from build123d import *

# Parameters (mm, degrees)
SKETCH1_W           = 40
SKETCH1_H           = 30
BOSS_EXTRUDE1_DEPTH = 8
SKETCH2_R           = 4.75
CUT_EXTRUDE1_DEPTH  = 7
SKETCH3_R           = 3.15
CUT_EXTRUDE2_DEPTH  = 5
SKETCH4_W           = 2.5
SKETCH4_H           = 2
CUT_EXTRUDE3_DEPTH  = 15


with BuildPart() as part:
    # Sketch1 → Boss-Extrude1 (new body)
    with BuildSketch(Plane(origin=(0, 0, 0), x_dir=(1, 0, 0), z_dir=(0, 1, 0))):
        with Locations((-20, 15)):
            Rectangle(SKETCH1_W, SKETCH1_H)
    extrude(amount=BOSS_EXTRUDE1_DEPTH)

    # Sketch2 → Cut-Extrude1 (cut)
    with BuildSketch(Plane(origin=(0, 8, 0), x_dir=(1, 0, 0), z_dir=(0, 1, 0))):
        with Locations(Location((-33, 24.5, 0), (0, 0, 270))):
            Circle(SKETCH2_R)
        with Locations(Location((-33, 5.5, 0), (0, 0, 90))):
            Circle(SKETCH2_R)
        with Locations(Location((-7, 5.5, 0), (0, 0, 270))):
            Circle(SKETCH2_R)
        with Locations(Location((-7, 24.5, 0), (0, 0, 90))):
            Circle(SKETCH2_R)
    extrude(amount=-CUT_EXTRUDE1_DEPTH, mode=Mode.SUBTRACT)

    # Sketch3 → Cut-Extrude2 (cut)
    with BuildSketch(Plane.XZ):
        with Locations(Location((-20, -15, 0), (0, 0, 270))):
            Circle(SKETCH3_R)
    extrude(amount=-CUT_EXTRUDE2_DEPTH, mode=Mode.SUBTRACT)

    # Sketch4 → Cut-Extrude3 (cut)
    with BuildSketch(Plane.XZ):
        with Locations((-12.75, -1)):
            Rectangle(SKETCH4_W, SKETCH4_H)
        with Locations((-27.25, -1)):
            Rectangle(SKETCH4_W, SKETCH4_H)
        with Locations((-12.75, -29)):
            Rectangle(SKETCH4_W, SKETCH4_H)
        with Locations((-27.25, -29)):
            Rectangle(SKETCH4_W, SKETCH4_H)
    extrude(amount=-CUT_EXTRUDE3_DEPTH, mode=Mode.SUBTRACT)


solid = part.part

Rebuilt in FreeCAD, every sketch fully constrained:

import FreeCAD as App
import Part
import Sketcher

V = App.Vector


def add_polygon(sketch, points):
    """Adds a closed chain of lines whose ends are joined by coincident constraints."""
    first, n = sketch.GeometryCount, len(points)
    for a, b in zip(points, points[1:] + points[:1]):
        sketch.addGeometry(Part.LineSegment(App.Vector(*a, 0), App.Vector(*b, 0)), False)
    for i in range(n):
        sketch.addConstraint(Sketcher.Constraint("Coincident", first + i, 2, first + (i + 1) % n, 1))

doc = App.newDocument("Part")
body = doc.addObject("PartDesign::Body", "Body")

# Sketch on XZ plane
sketch1 = doc.addObject("Sketcher::SketchObject", "Sketch")
body.addObject(sketch1)
sketch1.AttachmentSupport = (doc.XZ_Plane, [""])
sketch1.MapMode = "FlatFace"
add_polygon(sketch1, [(-40, -30), (-40, 0), (0, 0), (0, -30)])  # lines 0-3
sketch1.addConstraint([
    Sketcher.Constraint("Vertical", 0),
    Sketcher.Constraint("Horizontal", 1),
    Sketcher.Constraint("Vertical", 2),
    Sketcher.Constraint("Horizontal", 3),
    Sketcher.Constraint("Coincident", 1, 2, -1, 1),
    Sketcher.Constraint("DistanceX", 1, 1, 1, 2, 40.0),
    Sketcher.Constraint("DistanceY", 0, 1, 0, 2, 30.0),
])
pad1 = doc.addObject("PartDesign::Pad", "Pad")
body.addObject(pad1)
pad1.Profile = sketch1
pad1.Length = 8
pad1.Reversed = True

# Sketch on XZ plane
sketch2 = doc.addObject("Sketcher::SketchObject", "Sketch001")
body.addObject(sketch2)
sketch2.AttachmentSupport = (doc.XZ_Plane, [""])
sketch2.MapMode = "FlatFace"
sketch2.AttachmentOffset = App.Placement(V(0, 0, -8), App.Rotation())
sketch2.addGeometry([
    Part.Circle(V(-33, -24.5, 0), V(0, 0, 1), 4.8),
    Part.Circle(V(-33, -5.5, 0), V(0, 0, 1), 4.8),
    Part.Circle(V(-7, -5.5, 0), V(0, 0, 1), 4.8),
    Part.Circle(V(-7, -24.5, 0), V(0, 0, 1), 4.8),
], False)
sketch2.addConstraint([
    Sketcher.Constraint("Equal", 0, 1),
    Sketcher.Constraint("Equal", 1, 2),
    Sketcher.Constraint("Equal", 2, 3),
    Sketcher.Constraint("Horizontal", 1, 3, 2, 3),
    Sketcher.Constraint("Horizontal", 0, 3, 3, 3),
    Sketcher.Constraint("Vertical", 0, 3, 1, 3),
    Sketcher.Constraint("Vertical", 2, 3, 3, 3),
    Sketcher.Constraint("Diameter", 0, 9.5),
    Sketcher.Constraint("DistanceX", 0, 3, -1, 1, 33.0),
    Sketcher.Constraint("DistanceX", 2, 3, -1, 1, 7.0),
    Sketcher.Constraint("DistanceY", 0, 3, 1, 3, 19.0),
    Sketcher.Constraint("DistanceY", 0, 3, -1, 1, 24.5),
])
pocket1 = doc.addObject("PartDesign::Pocket", "Pocket")
body.addObject(pocket1)
pocket1.Profile = sketch2
pocket1.Length = 7
pocket1.Reversed = True

# Sketch on XZ plane
sketch3 = doc.addObject("Sketcher::SketchObject", "Sketch002")
body.addObject(sketch3)
sketch3.AttachmentSupport = (doc.XZ_Plane, [""])
sketch3.MapMode = "FlatFace"
sketch3.addGeometry(Part.Circle(V(-20, -15, 0), V(0, 0, 1), 3.1), False)
sketch3.addConstraint([
    Sketcher.Constraint("Diameter", 0, 6.3),
    Sketcher.Constraint("DistanceX", 0, 3, -1, 1, 20.0),
    Sketcher.Constraint("DistanceY", 0, 3, -1, 1, 15.0),
])
pocket2 = doc.addObject("PartDesign::Pocket", "Pocket001")
body.addObject(pocket2)
pocket2.Profile = sketch3
pocket2.Length = 5

# Sketch on XZ plane
sketch4 = doc.addObject("Sketcher::SketchObject", "Sketch003")
body.addObject(sketch4)
sketch4.AttachmentSupport = (doc.XZ_Plane, [""])
sketch4.MapMode = "FlatFace"
add_polygon(sketch4, [(-14, 0), (-14, -2), (-11.5, -2), (-11.5, 0)])  # lines 0-3
add_polygon(sketch4, [(-28.5, 0), (-28.5, -2), (-26, -2), (-26, 0)])  # lines 4-7
add_polygon(sketch4, [(-14, -28), (-14, -30), (-11.5, -30), (-11.5, -28)])  # lines 8-11
add_polygon(sketch4, [(-28.5, -28), (-28.5, -30), (-26, -30), (-26, -28)])  # lines 12-15
sketch4.addConstraint([
    Sketcher.Constraint("Vertical", 0),
    Sketcher.Constraint("Horizontal", 1),
    Sketcher.Constraint("Vertical", 2),
    Sketcher.Constraint("Horizontal", 3),
    Sketcher.Constraint("Vertical", 4),
    Sketcher.Constraint("Horizontal", 5),
    Sketcher.Constraint("Vertical", 6),
    Sketcher.Constraint("Horizontal", 7),
    Sketcher.Constraint("Vertical", 8),
    Sketcher.Constraint("Horizontal", 9),
    Sketcher.Constraint("Vertical", 10),
    Sketcher.Constraint("Horizontal", 11),
    Sketcher.Constraint("Vertical", 12),
    Sketcher.Constraint("Horizontal", 13),
    Sketcher.Constraint("Vertical", 14),
    Sketcher.Constraint("Horizontal", 15),
    Sketcher.Constraint("PointOnObject", 2, 2, -1),
    Sketcher.Constraint("PointOnObject", 6, 2, -1),
    Sketcher.Constraint("Horizontal", 1, 2, 4, 2),
    Sketcher.Constraint("Horizontal", 9, 2, 12, 2),
    Sketcher.Constraint("Horizontal", 11, 2, 14, 2),
    Sketcher.Constraint("Vertical", 3, 2, 8, 2),
    Sketcher.Constraint("Vertical", 2, 2, 9, 2),
    Sketcher.Constraint("Vertical", 7, 2, 12, 2),
    Sketcher.Constraint("Vertical", 6, 2, 13, 2),
    Sketcher.Constraint("Equal", 3, 5),
    Sketcher.Constraint("Equal", 6, 8),
    Sketcher.Constraint("DistanceY", 0, 2, 0, 1, 2.0),
    Sketcher.Constraint("DistanceX", 1, 1, 1, 2, 2.5),
    Sketcher.Constraint("DistanceX", 0, 2, -1, 1, 14.0),
    Sketcher.Constraint("DistanceX", 5, 2, -1, 1, 26.0),
    Sketcher.Constraint("DistanceY", 8, 2, -1, 1, 30.0),
])
pocket3 = doc.addObject("PartDesign::Pocket", "Pocket002")
body.addObject(pocket3)
pocket3.Profile = sketch4
pocket3.Length = 15

doc.recompute()
